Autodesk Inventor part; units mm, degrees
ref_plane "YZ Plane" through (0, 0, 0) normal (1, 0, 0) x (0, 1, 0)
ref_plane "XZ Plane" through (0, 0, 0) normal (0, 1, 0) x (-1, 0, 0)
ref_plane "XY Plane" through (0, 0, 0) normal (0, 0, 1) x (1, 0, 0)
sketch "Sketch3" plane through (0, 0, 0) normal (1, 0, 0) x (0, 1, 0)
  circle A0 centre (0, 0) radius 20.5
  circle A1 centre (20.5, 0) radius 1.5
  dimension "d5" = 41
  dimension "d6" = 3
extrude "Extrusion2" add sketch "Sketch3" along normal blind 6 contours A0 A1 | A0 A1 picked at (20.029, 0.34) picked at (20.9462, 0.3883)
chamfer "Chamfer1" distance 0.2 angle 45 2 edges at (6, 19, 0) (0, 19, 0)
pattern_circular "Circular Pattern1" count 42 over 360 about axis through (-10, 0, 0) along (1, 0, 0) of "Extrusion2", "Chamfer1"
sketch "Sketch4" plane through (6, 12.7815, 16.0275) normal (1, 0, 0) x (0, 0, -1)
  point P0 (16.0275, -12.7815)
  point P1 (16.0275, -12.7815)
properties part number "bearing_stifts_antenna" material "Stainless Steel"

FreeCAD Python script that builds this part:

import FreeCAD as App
import Part
import Sketcher
Q = App.Units.Quantity


def edges_at(feature, points):
    """Names of the edges that pass closest to the given points."""
    edges = feature.Shape.Edges
    near = lambda p: min(range(len(edges)), key=lambda i: edges[i].distToShape(Part.Vertex(*p))[0])
    return sorted({f"Edge{near(p) + 1}" for p in points})

doc = App.newDocument("Part")
body = doc.addObject("PartDesign::Body", "Body")
body.AllowCompound = True

# Sketch on YZ plane
sketch1 = body.newObject("Sketcher::SketchObject", "Sketch")
sketch1.AttachmentSupport = (doc.getObject("YZ_Plane"), [""])
sketch1.MapMode = "FlatFace"
sketch1.addGeometry(Part.Circle(App.Vector(20.5, 0, 0), App.Vector(0, 0, 1), 1.5), False)
sketch1.addConstraint([
    Sketcher.Constraint("PointOnObject", 0, 3, -1),
    Sketcher.Constraint("Diameter", 0, Q("3 mm")),
    Sketcher.Constraint("DistanceX", -1, 1, 0, 3, Q("20.5 mm")),
])
pad1 = body.newObject("PartDesign::Pad", "Pad")
pad1.Profile = sketch1
pad1.Length = 6
doc.recompute()

chamfer = body.newObject("PartDesign::Chamfer", "Chamfer")
chamfer.Base = (pad1, edges_at(pad1, [(6, 19, 0), (0, 19, 0)]))
chamfer.Size = 0.2
doc.recompute()

polarpattern = body.newObject("PartDesign::PolarPattern", "PolarPattern")
polarpattern.Originals = [pad1, chamfer]
polarpattern.Axis = (doc.getObject("X_Axis"), [""])
polarpattern.Angle = 360
polarpattern.Occurrences = 42
body.Tip = polarpattern

doc.recompute()
